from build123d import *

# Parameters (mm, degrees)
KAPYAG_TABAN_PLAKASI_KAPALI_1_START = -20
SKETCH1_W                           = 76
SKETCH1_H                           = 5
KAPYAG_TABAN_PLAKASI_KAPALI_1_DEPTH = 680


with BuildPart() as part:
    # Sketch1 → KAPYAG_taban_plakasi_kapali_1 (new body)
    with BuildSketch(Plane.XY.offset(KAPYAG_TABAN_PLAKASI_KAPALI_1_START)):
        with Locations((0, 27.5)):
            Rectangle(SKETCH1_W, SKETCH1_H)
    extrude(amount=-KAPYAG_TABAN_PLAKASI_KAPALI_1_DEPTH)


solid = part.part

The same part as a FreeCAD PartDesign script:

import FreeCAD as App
import Part
import Sketcher

V = App.Vector


def add_polygon(sketch, points):
    """Adds a closed chain of lines whose ends are joined by coincident constraints."""
    first, n = sketch.GeometryCount, len(points)
    for a, b in zip(points, points[1:] + points[:1]):
        sketch.addGeometry(Part.LineSegment(App.Vector(*a, 0), App.Vector(*b, 0)), False)
    for i in range(n):
        sketch.addConstraint(Sketcher.Constraint("Coincident", first + i, 2, first + (i + 1) % n, 1))

doc = App.newDocument("Part")
body = doc.addObject("PartDesign::Body", "Body")

sketch1 = body.newObject("Sketcher::SketchObject", "Sketch")
sketch1.AttachmentSupport = (doc.getObject("XY_Plane"), [""])
sketch1.MapMode = "FlatFace"
sketch1.AttachmentOffset = App.Placement(V(0, 0, -20), App.Rotation())
add_polygon(sketch1, [(-38, 30), (-38, 25), (38, 25), (38, 30)])
sketch1.addConstraint([
    Sketcher.Constraint("Vertical", 0),
    Sketcher.Constraint("Horizontal", 1),
    Sketcher.Constraint("Vertical", 2),
    Sketcher.Constraint("Horizontal", 3),
    Sketcher.Constraint("DistanceX", 1, 1, 1, 2, 76.0),
    Sketcher.Constraint("DistanceY", 0, 2, 0, 1, 5.0),
    Sketcher.Constraint("DistanceX", 0, 2, -1, 1, 38.0),
    Sketcher.Constraint("DistanceY", -1, 1, 0, 2, 25.0),
])
pad1 = body.newObject("PartDesign::Pad", "Pad")
pad1.Profile = sketch1
pad1.Length = 680
pad1.Reversed = True

doc.recompute()
